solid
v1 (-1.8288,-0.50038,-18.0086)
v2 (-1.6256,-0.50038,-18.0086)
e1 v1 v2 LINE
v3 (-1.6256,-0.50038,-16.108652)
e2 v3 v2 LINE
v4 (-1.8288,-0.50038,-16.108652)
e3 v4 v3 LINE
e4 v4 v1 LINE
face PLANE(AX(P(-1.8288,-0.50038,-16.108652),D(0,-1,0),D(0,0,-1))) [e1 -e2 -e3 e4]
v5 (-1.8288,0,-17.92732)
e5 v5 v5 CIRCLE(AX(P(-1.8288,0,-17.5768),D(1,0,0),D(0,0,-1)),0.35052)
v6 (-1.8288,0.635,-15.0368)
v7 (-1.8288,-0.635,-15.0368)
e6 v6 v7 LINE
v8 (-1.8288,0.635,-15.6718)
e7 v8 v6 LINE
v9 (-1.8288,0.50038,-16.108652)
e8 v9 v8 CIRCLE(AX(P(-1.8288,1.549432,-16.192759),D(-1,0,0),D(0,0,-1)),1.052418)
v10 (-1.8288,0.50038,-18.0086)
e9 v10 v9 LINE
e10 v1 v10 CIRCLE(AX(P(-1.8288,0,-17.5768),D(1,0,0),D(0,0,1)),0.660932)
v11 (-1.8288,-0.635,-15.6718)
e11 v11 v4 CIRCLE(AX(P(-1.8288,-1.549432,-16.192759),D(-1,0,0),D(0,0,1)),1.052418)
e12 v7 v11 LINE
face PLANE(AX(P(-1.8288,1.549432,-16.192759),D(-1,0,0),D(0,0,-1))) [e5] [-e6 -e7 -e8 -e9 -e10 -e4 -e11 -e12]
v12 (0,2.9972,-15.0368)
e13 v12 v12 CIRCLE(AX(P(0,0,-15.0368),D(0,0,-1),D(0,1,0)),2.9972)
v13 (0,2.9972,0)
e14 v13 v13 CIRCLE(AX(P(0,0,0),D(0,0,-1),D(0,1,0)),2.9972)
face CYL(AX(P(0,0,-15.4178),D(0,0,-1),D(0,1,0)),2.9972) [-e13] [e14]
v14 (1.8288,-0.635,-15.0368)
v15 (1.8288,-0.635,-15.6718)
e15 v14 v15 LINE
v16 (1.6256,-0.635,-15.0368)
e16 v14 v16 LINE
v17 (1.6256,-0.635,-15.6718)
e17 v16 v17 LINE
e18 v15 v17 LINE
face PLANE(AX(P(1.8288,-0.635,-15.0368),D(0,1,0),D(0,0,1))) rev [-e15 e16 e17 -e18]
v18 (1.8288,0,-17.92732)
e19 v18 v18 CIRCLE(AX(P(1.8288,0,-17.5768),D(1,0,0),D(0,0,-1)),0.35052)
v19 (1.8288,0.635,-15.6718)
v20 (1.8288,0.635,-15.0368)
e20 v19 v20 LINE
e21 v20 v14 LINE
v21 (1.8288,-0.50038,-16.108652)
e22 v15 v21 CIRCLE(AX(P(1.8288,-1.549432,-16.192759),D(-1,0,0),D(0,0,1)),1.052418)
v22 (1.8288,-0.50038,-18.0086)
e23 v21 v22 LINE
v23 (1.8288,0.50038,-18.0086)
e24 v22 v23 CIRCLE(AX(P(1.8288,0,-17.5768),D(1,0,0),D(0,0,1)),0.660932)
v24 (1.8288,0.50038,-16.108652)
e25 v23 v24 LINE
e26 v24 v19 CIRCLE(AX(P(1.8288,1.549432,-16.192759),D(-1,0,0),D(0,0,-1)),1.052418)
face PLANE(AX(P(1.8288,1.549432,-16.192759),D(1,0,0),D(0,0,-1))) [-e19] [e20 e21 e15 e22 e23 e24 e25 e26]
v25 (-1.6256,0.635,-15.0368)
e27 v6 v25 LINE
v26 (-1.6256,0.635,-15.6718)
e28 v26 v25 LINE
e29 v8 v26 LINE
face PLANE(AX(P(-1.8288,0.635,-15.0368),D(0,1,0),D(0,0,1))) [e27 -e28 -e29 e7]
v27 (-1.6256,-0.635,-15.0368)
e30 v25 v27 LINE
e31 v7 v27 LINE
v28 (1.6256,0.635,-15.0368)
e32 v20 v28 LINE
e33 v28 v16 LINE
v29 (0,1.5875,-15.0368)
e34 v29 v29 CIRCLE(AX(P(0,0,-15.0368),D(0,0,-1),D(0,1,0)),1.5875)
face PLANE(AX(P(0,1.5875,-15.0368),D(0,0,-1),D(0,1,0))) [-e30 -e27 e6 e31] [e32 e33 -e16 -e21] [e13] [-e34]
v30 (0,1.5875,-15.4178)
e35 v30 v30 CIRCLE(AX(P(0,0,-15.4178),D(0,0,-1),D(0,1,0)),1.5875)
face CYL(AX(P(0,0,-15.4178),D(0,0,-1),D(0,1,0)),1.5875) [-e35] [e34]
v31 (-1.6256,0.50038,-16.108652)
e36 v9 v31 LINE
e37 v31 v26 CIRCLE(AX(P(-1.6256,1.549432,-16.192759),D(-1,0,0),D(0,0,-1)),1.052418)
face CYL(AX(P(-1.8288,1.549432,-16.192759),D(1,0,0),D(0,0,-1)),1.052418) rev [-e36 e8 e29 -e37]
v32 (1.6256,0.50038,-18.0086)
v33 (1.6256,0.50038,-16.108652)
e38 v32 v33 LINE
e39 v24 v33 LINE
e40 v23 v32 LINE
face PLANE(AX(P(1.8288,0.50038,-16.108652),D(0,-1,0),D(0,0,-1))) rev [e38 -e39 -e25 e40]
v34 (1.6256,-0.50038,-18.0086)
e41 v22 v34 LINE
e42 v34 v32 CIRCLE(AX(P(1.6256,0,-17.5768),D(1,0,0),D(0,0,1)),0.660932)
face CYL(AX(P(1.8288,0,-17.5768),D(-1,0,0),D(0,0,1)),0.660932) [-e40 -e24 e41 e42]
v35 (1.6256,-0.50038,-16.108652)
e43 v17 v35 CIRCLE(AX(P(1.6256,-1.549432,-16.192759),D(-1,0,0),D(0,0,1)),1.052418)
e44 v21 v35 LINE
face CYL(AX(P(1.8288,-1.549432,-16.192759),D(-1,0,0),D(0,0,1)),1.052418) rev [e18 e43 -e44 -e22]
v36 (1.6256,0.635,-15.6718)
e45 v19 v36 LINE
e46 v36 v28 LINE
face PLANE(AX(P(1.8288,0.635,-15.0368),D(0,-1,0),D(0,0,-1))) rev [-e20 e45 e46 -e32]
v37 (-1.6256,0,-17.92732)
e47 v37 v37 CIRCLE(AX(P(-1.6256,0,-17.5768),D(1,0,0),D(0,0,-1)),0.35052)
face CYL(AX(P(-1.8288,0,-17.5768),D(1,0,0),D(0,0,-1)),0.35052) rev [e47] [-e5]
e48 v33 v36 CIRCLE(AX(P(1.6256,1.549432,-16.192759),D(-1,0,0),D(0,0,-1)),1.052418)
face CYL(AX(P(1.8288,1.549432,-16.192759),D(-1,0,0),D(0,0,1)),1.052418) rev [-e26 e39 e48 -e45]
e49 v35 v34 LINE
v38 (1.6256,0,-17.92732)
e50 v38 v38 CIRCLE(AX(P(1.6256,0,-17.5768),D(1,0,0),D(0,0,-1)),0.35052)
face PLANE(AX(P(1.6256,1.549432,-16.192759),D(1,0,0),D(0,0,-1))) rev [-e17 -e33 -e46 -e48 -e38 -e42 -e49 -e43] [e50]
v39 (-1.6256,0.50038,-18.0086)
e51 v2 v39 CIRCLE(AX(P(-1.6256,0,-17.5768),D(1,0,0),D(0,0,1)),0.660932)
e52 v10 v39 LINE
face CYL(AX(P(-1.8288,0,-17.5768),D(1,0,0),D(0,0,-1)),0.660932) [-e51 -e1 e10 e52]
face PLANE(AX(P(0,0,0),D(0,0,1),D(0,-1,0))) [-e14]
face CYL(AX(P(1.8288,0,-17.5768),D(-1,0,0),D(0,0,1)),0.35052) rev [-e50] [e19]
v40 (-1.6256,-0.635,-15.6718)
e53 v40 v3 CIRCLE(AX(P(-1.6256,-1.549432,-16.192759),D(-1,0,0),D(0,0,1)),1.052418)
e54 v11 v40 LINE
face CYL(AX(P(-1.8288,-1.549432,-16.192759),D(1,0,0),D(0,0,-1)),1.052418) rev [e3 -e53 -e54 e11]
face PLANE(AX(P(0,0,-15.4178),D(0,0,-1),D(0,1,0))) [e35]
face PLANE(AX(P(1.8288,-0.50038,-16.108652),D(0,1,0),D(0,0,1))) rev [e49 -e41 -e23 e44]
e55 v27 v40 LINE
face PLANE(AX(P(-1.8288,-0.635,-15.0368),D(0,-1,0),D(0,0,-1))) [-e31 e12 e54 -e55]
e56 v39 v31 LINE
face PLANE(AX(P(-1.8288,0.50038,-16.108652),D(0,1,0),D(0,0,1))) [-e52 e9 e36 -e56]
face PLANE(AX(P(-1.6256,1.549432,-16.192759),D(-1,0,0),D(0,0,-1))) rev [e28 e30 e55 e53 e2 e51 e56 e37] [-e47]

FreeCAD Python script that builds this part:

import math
import FreeCAD as App
import Part
import Sketcher

V = App.Vector
Q = App.Units.Quantity

doc = App.newDocument("Part")
body = doc.addObject("PartDesign::Body", "Body")

sketch1 = body.newObject("Sketcher::SketchObject", "Sketch")
sketch1.AttachmentSupport = (doc.getObject("YZ_Plane"), [""])
sketch1.MapMode = "FlatFace"
sketch1.addGeometry([
    Part.LineSegment(V(2.9972, 0, 0), V(0, 0, 0)),
    Part.LineSegment(V(0, 0, 0), V(0, -15.4178, 0)),
    Part.LineSegment(V(0, -15.4178, 0), V(1.5875, -15.4178, 0)),
    Part.LineSegment(V(1.5875, -15.4178, 0), V(1.5875, -15.0368, 0)),
    Part.LineSegment(V(1.5875, -15.0368, 0), V(2.9972, -15.0368, 0)),
    Part.LineSegment(V(2.9972, -15.0368, 0), V(2.9972, 0, 0)),
], False)
sketch1.addConstraint([
    Sketcher.Constraint("Coincident", 0, 2, 1, 1),
    Sketcher.Constraint("Coincident", 1, 2, 2, 1),
    Sketcher.Constraint("Coincident", 2, 2, 3, 1),
    Sketcher.Constraint("Coincident", 3, 2, 4, 1),
    Sketcher.Constraint("Coincident", 4, 2, 5, 1),
    Sketcher.Constraint("Coincident", 5, 2, 0, 1),
    Sketcher.Constraint("Horizontal", 0),
    Sketcher.Constraint("Vertical", 1),
    Sketcher.Constraint("Horizontal", 2),
    Sketcher.Constraint("Vertical", 3),
    Sketcher.Constraint("Horizontal", 4),
    Sketcher.Constraint("Vertical", 5),
    Sketcher.Constraint("Coincident", 0, 2, -1, 1),
    Sketcher.Constraint("DistanceX", 0, 2, 0, 1, Q("0.118 in")),
    Sketcher.Constraint("DistanceX", 2, 1, 2, 2, Q("0.0625 in")),
    Sketcher.Constraint("DistanceY", 1, 2, 1, 1, Q("0.607 in")),
    Sketcher.Constraint("DistanceY", 3, 1, 3, 2, Q("0.015 in")),
])
revolution = body.newObject("PartDesign::Revolution", "Revolution")
revolution.Profile = sketch1
revolution.ReferenceAxis = (sketch1, ["V_Axis"])
revolution.Angle = 360

sketch2 = body.newObject("Sketcher::SketchObject", "Sketch001")
sketch2.AttachmentSupport = (doc.getObject("YZ_Plane"), [""])
sketch2.MapMode = "FlatFace"
sketch2.AttachmentOffset = App.Placement(V(0, 0, 0.064 * 25.4), App.Rotation())
sketch2.addGeometry([
    Part.LineSegment(V(0.635, -15.0368, 0), V(-0.635, -15.0368, 0)),
    Part.LineSegment(V(-0.635, -15.0368, 0), V(-0.635, -15.6718, 0)),
    Part.ArcOfCircle(Part.Circle(V(-1.549432, -16.192759, 0), V(0, 0, 1), 1.052418), math.radians(4.583844), math.radians(29.670495)),
    Part.LineSegment(V(-0.50038, -16.108652, 0), V(-0.50038, -18.0086, 0)),
    Part.ArcOfCircle(Part.Circle(V(0, -17.5768, 0), V(0, 0, 1), 0.660932), math.radians(-139.207641), math.radians(-40.792359)),
    Part.LineSegment(V(0.50038, -18.0086, 0), V(0.50038, -16.108652, 0)),
    Part.ArcOfCircle(Part.Circle(V(1.549432, -16.192759, 0), V(0, 0, 1), 1.052418), math.radians(150.329505), math.radians(175.416156)),
    Part.LineSegment(V(0.635, -15.6718, 0), V(0.635, -15.0368, 0)),
    Part.Circle(V(0, -17.5768, 0), V(0, 0, 1), 0.35052),
], False)
sketch2.addConstraint([
    Sketcher.Constraint("Coincident", 0, 2, 1, 1),
    Sketcher.Constraint("Coincident", 1, 2, 2, 2),
    Sketcher.Constraint("Coincident", 2, 1, 3, 1),
    Sketcher.Constraint("Coincident", 3, 2, 4, 1),
    Sketcher.Constraint("Coincident", 4, 2, 5, 1),
    Sketcher.Constraint("Coincident", 5, 2, 6, 2),
    Sketcher.Constraint("Coincident", 6, 1, 7, 1),
    Sketcher.Constraint("Coincident", 7, 2, 0, 1),
    Sketcher.Constraint("Horizontal", 0),
    Sketcher.Constraint("Vertical", 1),
    Sketcher.Constraint("Vertical", 3),
    Sketcher.Constraint("Vertical", 5),
    Sketcher.Constraint("Vertical", 7),
    Sketcher.Constraint("Coincident", 8, 3, 4, 3),
    Sketcher.Constraint("Equal", 2, 6),
    Sketcher.Constraint("Symmetric", 2, 3, 6, 3, -2),
    Sketcher.Constraint("Symmetric", 3, 2, 4, 2, -2),
    Sketcher.Constraint("Horizontal", 1, 2, 6, 1),
    Sketcher.Constraint("Diameter", 8, Q("0.0276 in")),
    Sketcher.Constraint("DistanceX", 0, 2, 0, 1, Q("0.05 in")),
    Sketcher.Constraint("DistanceY", 8, 3, 0, 2, Q("0.1 in")),
    Sketcher.Constraint("DistanceY", 1, 2, 1, 1, Q("0.025 in")),
    Sketcher.Constraint("DistanceY", 4, 3, -1, 1, Q("0.692 in")),
    Sketcher.Constraint("DistanceY", 3, 2, -1, 1, Q("0.709 in")),
    Sketcher.Constraint("Radius", 2, 1.052418),
    Sketcher.Constraint("DistanceX", 2, 1, -1, 1, Q("0.0197 in")),
    Sketcher.Constraint("DistanceY", 3, 2, 3, 1, 1.899948),
])
pad1 = body.newObject("PartDesign::Pad", "Pad")
pad1.Profile = sketch2
pad1.Length = Q("0.008 in")
doc.recompute()

mirrored = body.newObject("PartDesign::Mirrored", "Mirrored")
mirrored.Originals = [pad1]
mirrored.MirrorPlane = (doc.getObject("YZ_Plane"), [""])
body.Tip = mirrored

doc.recompute()
